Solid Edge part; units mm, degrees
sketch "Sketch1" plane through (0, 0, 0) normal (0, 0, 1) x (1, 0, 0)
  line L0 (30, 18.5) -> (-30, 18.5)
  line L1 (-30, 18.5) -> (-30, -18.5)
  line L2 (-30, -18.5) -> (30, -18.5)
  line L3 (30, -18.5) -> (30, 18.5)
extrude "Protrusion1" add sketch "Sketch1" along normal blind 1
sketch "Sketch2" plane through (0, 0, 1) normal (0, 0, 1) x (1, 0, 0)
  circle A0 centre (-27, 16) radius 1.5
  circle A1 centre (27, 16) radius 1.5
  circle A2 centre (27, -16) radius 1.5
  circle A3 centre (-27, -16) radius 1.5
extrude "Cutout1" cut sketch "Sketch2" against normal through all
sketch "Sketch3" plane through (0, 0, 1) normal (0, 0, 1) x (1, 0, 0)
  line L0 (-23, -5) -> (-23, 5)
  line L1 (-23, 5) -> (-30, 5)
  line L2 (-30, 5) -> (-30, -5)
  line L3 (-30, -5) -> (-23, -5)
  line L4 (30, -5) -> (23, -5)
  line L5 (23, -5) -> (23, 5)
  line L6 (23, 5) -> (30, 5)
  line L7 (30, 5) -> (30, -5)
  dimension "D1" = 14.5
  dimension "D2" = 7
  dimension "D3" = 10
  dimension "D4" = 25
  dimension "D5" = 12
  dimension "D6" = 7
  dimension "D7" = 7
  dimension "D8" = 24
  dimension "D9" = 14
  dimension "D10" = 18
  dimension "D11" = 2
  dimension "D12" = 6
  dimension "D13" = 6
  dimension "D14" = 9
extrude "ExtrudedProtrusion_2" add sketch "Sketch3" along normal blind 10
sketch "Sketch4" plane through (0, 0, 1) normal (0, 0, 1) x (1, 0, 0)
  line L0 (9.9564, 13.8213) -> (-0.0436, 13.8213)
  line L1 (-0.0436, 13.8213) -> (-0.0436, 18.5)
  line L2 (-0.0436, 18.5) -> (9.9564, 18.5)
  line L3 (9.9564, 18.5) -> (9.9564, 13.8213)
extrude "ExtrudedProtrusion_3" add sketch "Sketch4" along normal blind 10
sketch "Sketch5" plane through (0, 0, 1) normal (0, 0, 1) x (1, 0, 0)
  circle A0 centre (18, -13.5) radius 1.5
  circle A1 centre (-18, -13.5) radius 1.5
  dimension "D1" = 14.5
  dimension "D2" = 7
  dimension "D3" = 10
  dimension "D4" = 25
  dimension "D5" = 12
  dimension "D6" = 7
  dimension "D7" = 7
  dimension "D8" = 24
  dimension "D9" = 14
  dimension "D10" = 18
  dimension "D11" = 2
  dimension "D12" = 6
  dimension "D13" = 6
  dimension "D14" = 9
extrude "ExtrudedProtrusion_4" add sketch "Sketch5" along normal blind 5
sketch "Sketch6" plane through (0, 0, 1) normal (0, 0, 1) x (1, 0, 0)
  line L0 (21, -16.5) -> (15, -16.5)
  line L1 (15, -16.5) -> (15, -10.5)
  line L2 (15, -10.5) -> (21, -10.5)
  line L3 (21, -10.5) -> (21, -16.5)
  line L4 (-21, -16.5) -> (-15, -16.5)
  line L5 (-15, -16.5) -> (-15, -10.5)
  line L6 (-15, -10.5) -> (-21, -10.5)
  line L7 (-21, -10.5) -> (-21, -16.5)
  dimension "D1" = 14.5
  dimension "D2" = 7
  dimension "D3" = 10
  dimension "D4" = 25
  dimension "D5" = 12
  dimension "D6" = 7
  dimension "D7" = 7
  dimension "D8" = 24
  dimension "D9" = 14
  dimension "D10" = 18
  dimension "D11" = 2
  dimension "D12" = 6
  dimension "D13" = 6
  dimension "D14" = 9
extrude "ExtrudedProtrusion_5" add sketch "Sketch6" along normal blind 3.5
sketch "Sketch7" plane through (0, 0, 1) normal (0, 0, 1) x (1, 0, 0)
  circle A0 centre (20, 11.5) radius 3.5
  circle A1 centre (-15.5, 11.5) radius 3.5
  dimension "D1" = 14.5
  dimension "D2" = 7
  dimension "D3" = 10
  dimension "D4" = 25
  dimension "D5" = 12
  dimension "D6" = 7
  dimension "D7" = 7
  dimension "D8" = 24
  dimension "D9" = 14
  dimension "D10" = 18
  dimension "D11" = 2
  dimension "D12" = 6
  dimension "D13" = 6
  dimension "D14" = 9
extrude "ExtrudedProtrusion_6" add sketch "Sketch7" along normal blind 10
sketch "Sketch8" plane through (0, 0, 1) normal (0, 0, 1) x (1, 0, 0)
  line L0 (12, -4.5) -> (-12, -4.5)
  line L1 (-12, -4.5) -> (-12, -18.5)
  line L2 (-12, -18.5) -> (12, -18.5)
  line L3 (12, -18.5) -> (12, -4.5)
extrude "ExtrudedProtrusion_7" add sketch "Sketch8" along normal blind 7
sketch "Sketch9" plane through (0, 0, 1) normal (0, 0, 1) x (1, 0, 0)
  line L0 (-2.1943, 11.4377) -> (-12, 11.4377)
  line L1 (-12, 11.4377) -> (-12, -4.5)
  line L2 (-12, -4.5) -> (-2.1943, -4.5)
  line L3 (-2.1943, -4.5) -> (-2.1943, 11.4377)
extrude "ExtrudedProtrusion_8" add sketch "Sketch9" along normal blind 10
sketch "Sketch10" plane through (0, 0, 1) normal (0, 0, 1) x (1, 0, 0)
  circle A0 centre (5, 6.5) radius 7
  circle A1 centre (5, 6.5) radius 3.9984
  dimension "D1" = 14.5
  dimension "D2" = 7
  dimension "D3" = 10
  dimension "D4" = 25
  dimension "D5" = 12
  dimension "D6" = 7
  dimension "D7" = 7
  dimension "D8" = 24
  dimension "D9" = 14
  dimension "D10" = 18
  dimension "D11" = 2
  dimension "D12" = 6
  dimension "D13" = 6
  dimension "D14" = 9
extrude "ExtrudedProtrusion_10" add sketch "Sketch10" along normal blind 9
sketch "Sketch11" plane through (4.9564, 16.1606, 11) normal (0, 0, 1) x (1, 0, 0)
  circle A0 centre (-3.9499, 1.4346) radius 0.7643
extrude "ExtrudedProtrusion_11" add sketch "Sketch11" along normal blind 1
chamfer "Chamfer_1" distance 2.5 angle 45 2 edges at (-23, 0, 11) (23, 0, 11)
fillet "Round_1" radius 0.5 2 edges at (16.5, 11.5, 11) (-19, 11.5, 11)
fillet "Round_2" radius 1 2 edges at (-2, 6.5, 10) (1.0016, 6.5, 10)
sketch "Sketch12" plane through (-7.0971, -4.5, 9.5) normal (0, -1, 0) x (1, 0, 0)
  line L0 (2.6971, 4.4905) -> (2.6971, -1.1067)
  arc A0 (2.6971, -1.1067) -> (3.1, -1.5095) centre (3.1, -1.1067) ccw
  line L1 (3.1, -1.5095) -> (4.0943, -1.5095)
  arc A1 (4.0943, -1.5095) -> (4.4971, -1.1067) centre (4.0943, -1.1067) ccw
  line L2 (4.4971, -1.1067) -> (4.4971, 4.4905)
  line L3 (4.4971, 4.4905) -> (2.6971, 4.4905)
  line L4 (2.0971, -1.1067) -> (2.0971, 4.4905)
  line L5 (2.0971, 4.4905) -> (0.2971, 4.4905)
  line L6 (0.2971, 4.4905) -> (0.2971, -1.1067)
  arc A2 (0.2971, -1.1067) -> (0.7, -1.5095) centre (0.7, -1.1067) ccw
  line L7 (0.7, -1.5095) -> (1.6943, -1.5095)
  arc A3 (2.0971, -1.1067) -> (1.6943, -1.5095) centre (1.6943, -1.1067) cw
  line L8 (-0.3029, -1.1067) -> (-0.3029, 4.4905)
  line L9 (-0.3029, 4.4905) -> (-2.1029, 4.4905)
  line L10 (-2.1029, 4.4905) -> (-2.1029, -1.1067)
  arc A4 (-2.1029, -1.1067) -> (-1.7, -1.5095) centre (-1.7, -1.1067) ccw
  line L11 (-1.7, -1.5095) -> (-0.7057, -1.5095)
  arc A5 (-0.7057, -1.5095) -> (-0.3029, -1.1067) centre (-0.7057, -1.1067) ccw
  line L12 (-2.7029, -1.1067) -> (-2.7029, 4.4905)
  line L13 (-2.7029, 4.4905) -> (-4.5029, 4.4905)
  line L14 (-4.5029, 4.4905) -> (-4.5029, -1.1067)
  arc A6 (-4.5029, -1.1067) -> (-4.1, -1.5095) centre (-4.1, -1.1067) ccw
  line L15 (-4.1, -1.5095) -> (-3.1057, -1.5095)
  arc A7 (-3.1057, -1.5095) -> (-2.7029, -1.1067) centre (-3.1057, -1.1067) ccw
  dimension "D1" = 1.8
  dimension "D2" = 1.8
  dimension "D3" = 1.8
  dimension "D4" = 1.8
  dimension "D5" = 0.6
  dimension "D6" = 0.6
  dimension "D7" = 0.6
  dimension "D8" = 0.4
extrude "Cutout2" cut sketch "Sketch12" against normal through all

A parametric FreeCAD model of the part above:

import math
import FreeCAD as App
import Part
import Sketcher
Q = App.Units.Quantity


def edges_at(feature, points):
    """Names of the edges that pass closest to the given points."""
    edges = feature.Shape.Edges
    near = lambda p: min(range(len(edges)), key=lambda i: edges[i].distToShape(Part.Vertex(*p))[0])
    return sorted({f"Edge{near(p) + 1}" for p in points})


def add_polygon(sketch, points):
    """Adds a closed chain of lines whose ends are joined by coincident constraints."""
    first, n = sketch.GeometryCount, len(points)
    for a, b in zip(points, points[1:] + points[:1]):
        sketch.addGeometry(Part.LineSegment(App.Vector(*a, 0), App.Vector(*b, 0)), False)
    for i in range(n):
        sketch.addConstraint(Sketcher.Constraint("Coincident", first + i, 2, first + (i + 1) % n, 1))

doc = App.newDocument("Part")
body = doc.addObject("PartDesign::Body", "Body")

sketch1 = body.newObject("Sketcher::SketchObject", "Sketch")
sketch1.AttachmentSupport = (doc.getObject("XY_Plane"), [""])
sketch1.MapMode = "FlatFace"
add_polygon(sketch1, [(30, -18), (30, 18), (-30, 18), (-30, -18)])
sketch1.addConstraint([
    Sketcher.Constraint("Vertical", 0),
    Sketcher.Constraint("Horizontal", 1),
    Sketcher.Constraint("Vertical", 2),
    Sketcher.Constraint("Horizontal", 3),
    Sketcher.Constraint("Symmetric", 0, 2, 2, 2, -1, 1),
    Sketcher.Constraint("DistanceX", 1, 2, 1, 1, Q("60 mm")),
    Sketcher.Constraint("DistanceY", 0, 1, 0, 2, Q("37 mm")),
])
pad1 = body.newObject("PartDesign::Pad", "Pad")
pad1.Profile = sketch1
pad1.Length = 1

sketch2 = body.newObject("Sketcher::SketchObject", "Sketch001")
sketch2.AttachmentSupport = (doc.getObject("XY_Plane"), [""])
sketch2.MapMode = "FlatFace"
sketch2.AttachmentOffset = App.Placement(App.Vector(0, 0, 1), App.Rotation())
sketch2.addGeometry([
    Part.Circle(App.Vector(-27, 16, 0), App.Vector(0, 0, 1), 1.5),
    Part.Circle(App.Vector(27, 16, 0), App.Vector(0, 0, 1), 1.5),
    Part.Circle(App.Vector(27, -16, 0), App.Vector(0, 0, 1), 1.5),
    Part.Circle(App.Vector(-27, -16, 0), App.Vector(0, 0, 1), 1.5),
], False)
sketch2.addConstraint([
    Sketcher.Constraint("Equal", 0, 1),
    Sketcher.Constraint("Equal", 1, 2),
    Sketcher.Constraint("Equal", 2, 3),
    Sketcher.Constraint("Symmetric", 0, 3, 2, 3, -1, 1),
    Sketcher.Constraint("Symmetric", 1, 3, 3, 3, -1, 1),
    Sketcher.Constraint("Symmetric", 0, 3, 1, 3, -2),
    Sketcher.Constraint("Diameter", 0, Q("3 mm")),
    Sketcher.Constraint("DistanceX", 0, 3, -1, 1, Q("27 mm")),
    Sketcher.Constraint("DistanceY", -1, 1, 0, 3, Q("16 mm")),
])
pocket1 = body.newObject("PartDesign::Pocket", "Pocket")
pocket1.Profile = sketch2
pocket1.Type = "ThroughAll"

sketch3 = body.newObject("Sketcher::SketchObject", "Sketch002")
sketch3.AttachmentSupport = (doc.getObject("XY_Plane"), [""])
sketch3.MapMode = "FlatFace"
sketch3.AttachmentOffset = App.Placement(App.Vector(0, 0, 1), App.Rotation())
add_polygon(sketch3, [(-30, -5), (-23, -5), (-23, 5), (-30, 5)])
add_polygon(sketch3, [(23, -5), (30, -5), (30, 5), (23, 5)])
sketch3.addConstraint([
    Sketcher.Constraint("Horizontal", 0),
    Sketcher.Constraint("Vertical", 1),
    Sketcher.Constraint("Horizontal", 2),
    Sketcher.Constraint("Vertical", 3),
    Sketcher.Constraint("Horizontal", 4),
    Sketcher.Constraint("Vertical", 5),
    Sketcher.Constraint("Horizontal", 6),
    Sketcher.Constraint("Vertical", 7),
    Sketcher.Constraint("Symmetric", 2, 2, 4, 2, -1, 1),
    Sketcher.Constraint("Symmetric", 0, 2, 6, 2, -1, 1),
    Sketcher.Constraint("Horizontal", 3, 2, 4, 2),
    Sketcher.Constraint("DistanceX", 0, 1, 0, 2, Q("7 mm")),
    Sketcher.Constraint("DistanceY", 1, 1, 1, 2, Q("10 mm")),
    Sketcher.Constraint("DistanceX", 0, 2, -1, 1, Q("23 mm")),
])
pad2 = body.newObject("PartDesign::Pad", "Pad001")
pad2.Profile = sketch3
pad2.Length = 10

sketch4 = body.newObject("Sketcher::SketchObject", "Sketch003")
sketch4.AttachmentSupport = (doc.getObject("XY_Plane"), [""])
sketch4.MapMode = "FlatFace"
sketch4.AttachmentOffset = App.Placement(App.Vector(0, 0, 1), App.Rotation())
add_polygon(sketch4, [(0, 13.8), (10, 13.8), (10, 18.5), (0, 18.5)])
sketch4.addConstraint([
    Sketcher.Constraint("Horizontal", 0),
    Sketcher.Constraint("Vertical", 1),
    Sketcher.Constraint("Horizontal", 2),
    Sketcher.Constraint("Vertical", 3),
    Sketcher.Constraint("DistanceX", 0, 1, 0, 2, Q("10 mm")),
    Sketcher.Constraint("DistanceY", -1, 1, 1, 2, Q("18.5 mm")),
    Sketcher.Constraint("DistanceY", 1, 1, 1, 2, Q("4.6787 mm")),
    Sketcher.Constraint("DistanceX", -1, 1, 0, 2, Q("9.9564 mm")),
])
pad3 = body.newObject("PartDesign::Pad", "Pad002")
pad3.Profile = sketch4
pad3.Length = 10

sketch5 = body.newObject("Sketcher::SketchObject", "Sketch004")
sketch5.AttachmentSupport = (doc.getObject("XY_Plane"), [""])
sketch5.MapMode = "FlatFace"
sketch5.AttachmentOffset = App.Placement(App.Vector(0, 0, 1), App.Rotation())
sketch5.addGeometry([
    Part.Circle(App.Vector(18, -13.5, 0), App.Vector(0, 0, 1), 1.5),
    Part.Circle(App.Vector(-18, -13.5, 0), App.Vector(0, 0, 1), 1.5),
], False)
sketch5.addConstraint([
    Sketcher.Constraint("Equal", 0, 1),
    Sketcher.Constraint("Symmetric", 0, 3, 1, 3, -2),
    Sketcher.Constraint("Diameter", 0, Q("3 mm")),
    Sketcher.Constraint("DistanceX", -1, 1, 0, 3, Q("18 mm")),
    Sketcher.Constraint("DistanceY", 0, 3, -1, 1, Q("13.5 mm")),
])
pad4 = body.newObject("PartDesign::Pad", "Pad003")
pad4.Profile = sketch5
pad4.Length = 5

sketch6 = body.newObject("Sketcher::SketchObject", "Sketch005")
sketch6.AttachmentSupport = (doc.getObject("XY_Plane"), [""])
sketch6.MapMode = "FlatFace"
sketch6.AttachmentOffset = App.Placement(App.Vector(0, 0, 1), App.Rotation())
add_polygon(sketch6, [(15, -16), (21, -16), (21, -10), (15, -10)])
add_polygon(sketch6, [(-21, -10), (-21, -16), (-15, -16), (-15, -10)])
sketch6.addConstraint([
    Sketcher.Constraint("Horizontal", 0),
    Sketcher.Constraint("Vertical", 1),
    Sketcher.Constraint("Horizontal", 2),
    Sketcher.Constraint("Vertical", 3),
    Sketcher.Constraint("Vertical", 4),
    Sketcher.Constraint("Horizontal", 5),
    Sketcher.Constraint("Vertical", 6),
    Sketcher.Constraint("Horizontal", 7),
    Sketcher.Constraint("Symmetric", 0, 2, 4, 2, -2),
    Sketcher.Constraint("Symmetric", 2, 2, 6, 2, -2),
    Sketcher.Constraint("Equal", 7, 1),
    Sketcher.Constraint("DistanceX", 0, 1, 0, 2, Q("6 mm")),
    Sketcher.Constraint("DistanceX", -1, 1, 0, 2, Q("21 mm")),
    Sketcher.Constraint("DistanceY", 0, 2, -1, 1, Q("16.5 mm")),
])
pad5 = body.newObject("PartDesign::Pad", "Pad004")
pad5.Profile = sketch6
pad5.Length = 3.5

sketch7 = body.newObject("Sketcher::SketchObject", "Sketch006")
sketch7.AttachmentSupport = (doc.getObject("XY_Plane"), [""])
sketch7.MapMode = "FlatFace"
sketch7.AttachmentOffset = App.Placement(App.Vector(0, 0, 1), App.Rotation())
sketch7.addGeometry([
    Part.Circle(App.Vector(20, 11.5, 0), App.Vector(0, 0, 1), 3.5),
    Part.Circle(App.Vector(-15.5, 11.5, 0), App.Vector(0, 0, 1), 3.5),
], False)
sketch7.addConstraint([
    Sketcher.Constraint("Equal", 0, 1),
    Sketcher.Constraint("Horizontal", 0, 3, 1, 3),
    Sketcher.Constraint("Diameter", 0, Q("7 mm")),
    Sketcher.Constraint("DistanceX", -1, 1, 0, 3, Q("20 mm")),
    Sketcher.Constraint("DistanceY", -1, 1, 0, 3, Q("11.5 mm")),
    Sketcher.Constraint("DistanceX", 1, 3, -1, 1, Q("15.5 mm")),
])
pad6 = body.newObject("PartDesign::Pad", "Pad005")
pad6.Profile = sketch7
pad6.Length = 10

sketch8 = body.newObject("Sketcher::SketchObject", "Sketch007")
sketch8.AttachmentSupport = (doc.getObject("XY_Plane"), [""])
sketch8.MapMode = "FlatFace"
sketch8.AttachmentOffset = App.Placement(App.Vector(0, 0, 1), App.Rotation())
add_polygon(sketch8, [(12, -18), (12, -4), (-12, -4), (-12, -18)])
sketch8.addConstraint([
    Sketcher.Constraint("Vertical", 0),
    Sketcher.Constraint("Horizontal", 1),
    Sketcher.Constraint("Vertical", 2),
    Sketcher.Constraint("Horizontal", 3),
    Sketcher.Constraint("DistanceX", 1, 2, 1, 1, Q("24 mm")),
    Sketcher.Constraint("DistanceY", 0, 1, 0, 2, Q("14 mm")),
    Sketcher.Constraint("DistanceX", -1, 1, 0, 2, Q("12 mm")),
    Sketcher.Constraint("DistanceY", 0, 2, -1, 1, Q("4.5 mm")),
])
pad7 = body.newObject("PartDesign::Pad", "Pad006")
pad7.Profile = sketch8
pad7.Length = 7

sketch9 = body.newObject("Sketcher::SketchObject", "Sketch008")
sketch9.AttachmentSupport = (doc.getObject("XY_Plane"), [""])
sketch9.MapMode = "FlatFace"
sketch9.AttachmentOffset = App.Placement(App.Vector(0, 0, 1), App.Rotation())
add_polygon(sketch9, [(-2, -4), (-2, 11), (-12, 11), (-12, -4)])
sketch9.addConstraint([
    Sketcher.Constraint("Vertical", 0),
    Sketcher.Constraint("Horizontal", 1),
    Sketcher.Constraint("Vertical", 2),
    Sketcher.Constraint("Horizontal", 3),
    Sketcher.Constraint("DistanceX", 1, 2, -1, 1, Q("12 mm")),
    Sketcher.Constraint("DistanceY", 2, 2, -1, 1, Q("4.5 mm")),
    Sketcher.Constraint("DistanceX", 1, 2, 1, 1, Q("9.8057 mm")),
    Sketcher.Constraint("DistanceY", 0, 1, 0, 2, Q("15.9377 mm")),
])
pad8 = body.newObject("PartDesign::Pad", "Pad007")
pad8.Profile = sketch9
pad8.Length = 10

sketch10 = body.newObject("Sketcher::SketchObject", "Sketch009")
sketch10.AttachmentSupport = (doc.getObject("XY_Plane"), [""])
sketch10.MapMode = "FlatFace"
sketch10.AttachmentOffset = App.Placement(App.Vector(0, 0, 1), App.Rotation())
sketch10.addGeometry([
    Part.Circle(App.Vector(5, 6.5, 0), App.Vector(0, 0, 1), 7),
    Part.Circle(App.Vector(5, 6.5, 0), App.Vector(0, 0, 1), 4),
], False)
sketch10.addConstraint([
    Sketcher.Constraint("Coincident", 1, 3, 0, 3),
    Sketcher.Constraint("Diameter", 0, Q("14 mm")),
    Sketcher.Constraint("DistanceX", -1, 1, 0, 3, Q("5 mm")),
    Sketcher.Constraint("Diameter", 1, Q("7.9968 mm")),
    Sketcher.Constraint("DistanceY", -1, 1, 0, 3, Q("6.5 mm")),
])
pad9 = body.newObject("PartDesign::Pad", "Pad008")
pad9.Profile = sketch10
pad9.Length = 9

sketch11 = body.newObject("Sketcher::SketchObject", "Sketch010")
sketch11.AttachmentSupport = (doc.getObject("XY_Plane"), [""])
sketch11.MapMode = "FlatFace"
sketch11.AttachmentOffset = App.Placement(App.Vector(0, 0, 11), App.Rotation())
sketch11.addGeometry(Part.Circle(App.Vector(1, 17.6, 0), App.Vector(0, 0, 1), 0.8), False)
sketch11.addConstraint([
    Sketcher.Constraint("Diameter", 0, Q("1.5286 mm")),
    Sketcher.Constraint("DistanceX", -1, 1, 0, 3, Q("1.0065 mm")),
    Sketcher.Constraint("DistanceY", -1, 1, 0, 3, Q("17.5952 mm")),
])
pad10 = body.newObject("PartDesign::Pad", "Pad009")
pad10.Profile = sketch11
pad10.Length = 1
doc.recompute()

chamfer = body.newObject("PartDesign::Chamfer", "Chamfer")
chamfer.Base = (pad10, edges_at(pad10, [(-23, 0, 11), (23, 0, 11)]))
chamfer.Size = 2.5
doc.recompute()

fillet = body.newObject("PartDesign::Fillet", "Fillet")
fillet.Base = (chamfer, edges_at(chamfer, [(16.5, 11.5, 11), (-19, 11.5, 11)]))
fillet.Radius = 0.5
doc.recompute()

fillet2 = body.newObject("PartDesign::Fillet", "Fillet001")
fillet2.Base = (fillet, edges_at(fillet, [(-2, 6.5, 10), (1.002, 6.5, 10)]))
fillet2.Radius = 1

sketch12 = body.newObject("Sketcher::SketchObject", "Sketch011")
sketch12.AttachmentSupport = (doc.getObject("XZ_Plane"), [""])
sketch12.MapMode = "FlatFace"
sketch12.AttachmentOffset = App.Placement(App.Vector(0, 0, 4.5), App.Rotation())
sketch12.addGeometry([
    Part.LineSegment(App.Vector(-2.6, 13.99, 0), App.Vector(-4.4, 13.99, 0)),
    Part.LineSegment(App.Vector(-4.4, 13.99, 0), App.Vector(-4.4, 8.39, 0)),
    Part.ArcOfCircle(Part.Circle(App.Vector(-4, 8.39, 0), App.Vector(0, 0, 1), 0.4), math.radians(180), math.radians(270)),
    Part.LineSegment(App.Vector(-4, 7.99, 0), App.Vector(-3, 7.99, 0)),
    Part.ArcOfCircle(Part.Circle(App.Vector(-3, 8.39, 0), App.Vector(0, 0, 1), 0.4), math.radians(-90), math.radians(0)),
    Part.LineSegment(App.Vector(-2.6, 8.39, 0), App.Vector(-2.6, 13.99, 0)),
    Part.ArcOfCircle(Part.Circle(App.Vector(-5.4, 8.39, 0), App.Vector(0, 0, 1), 0.4), math.radians(-90), math.radians(0)),
    Part.LineSegment(App.Vector(-5, 8.39, 0), App.Vector(-5, 13.99, 0)),
    Part.LineSegment(App.Vector(-5, 13.99, 0), App.Vector(-6.8, 13.99, 0)),
    Part.LineSegment(App.Vector(-6.8, 13.99, 0), App.Vector(-6.8, 8.39, 0)),
    Part.ArcOfCircle(Part.Circle(App.Vector(-6.4, 8.39, 0), App.Vector(0, 0, 1), 0.4), math.radians(180), math.radians(270)),
    Part.LineSegment(App.Vector(-6.4, 7.99, 0), App.Vector(-5.4, 7.99, 0)),
    Part.ArcOfCircle(Part.Circle(App.Vector(-7.8, 8.39, 0), App.Vector(0, 0, 1), 0.4), math.radians(-90), math.radians(0)),
    Part.LineSegment(App.Vector(-7.4, 8.39, 0), App.Vector(-7.4, 13.99, 0)),
    Part.LineSegment(App.Vector(-7.4, 13.99, 0), App.Vector(-9.2, 13.99, 0)),
    Part.LineSegment(App.Vector(-9.2, 13.99, 0), App.Vector(-9.2, 8.39, 0)),
    Part.ArcOfCircle(Part.Circle(App.Vector(-8.8, 8.39, 0), App.Vector(0, 0, 1), 0.4), math.radians(180), math.radians(270)),
    Part.LineSegment(App.Vector(-8.8, 7.99, 0), App.Vector(-7.8, 7.99, 0)),
    Part.ArcOfCircle(Part.Circle(App.Vector(-10.2, 8.39, 0), App.Vector(0, 0, 1), 0.4), math.radians(-90), math.radians(0)),
    Part.LineSegment(App.Vector(-9.8, 8.39, 0), App.Vector(-9.8, 13.99, 0)),
    Part.LineSegment(App.Vector(-9.8, 13.99, 0), App.Vector(-11.6, 13.99, 0)),
    Part.LineSegment(App.Vector(-11.6, 13.99, 0), App.Vector(-11.6, 8.39, 0)),
    Part.ArcOfCircle(Part.Circle(App.Vector(-11.2, 8.39, 0), App.Vector(0, 0, 1), 0.4), math.radians(180), math.radians(270)),
    Part.LineSegment(App.Vector(-11.2, 7.99, 0), App.Vector(-10.2, 7.99, 0)),
], False)
sketch12.addConstraint([
    Sketcher.Constraint("Coincident", 0, 2, 1, 1),
    Sketcher.Constraint("Tangent", 1, 2, 2, 1),
    Sketcher.Constraint("Tangent", 2, 2, 3, 1),
    Sketcher.Constraint("Tangent", 3, 2, 4, 1),
    Sketcher.Constraint("Tangent", 4, 2, 5, 1),
    Sketcher.Constraint("Coincident", 5, 2, 0, 1),
    Sketcher.Constraint("Tangent", 6, 2, 7, 1),
    Sketcher.Constraint("Coincident", 7, 2, 8, 1),
    Sketcher.Constraint("Coincident", 8, 2, 9, 1),
    Sketcher.Constraint("Tangent", 9, 2, 10, 1),
    Sketcher.Constraint("Tangent", 10, 2, 11, 1),
    Sketcher.Constraint("Tangent", 11, 2, 6, 1),
    Sketcher.Constraint("Tangent", 12, 2, 13, 1),
    Sketcher.Constraint("Coincident", 13, 2, 14, 1),
    Sketcher.Constraint("Coincident", 14, 2, 15, 1),
    Sketcher.Constraint("Tangent", 15, 2, 16, 1),
    Sketcher.Constraint("Tangent", 16, 2, 17, 1),
    Sketcher.Constraint("Tangent", 17, 2, 12, 1),
    Sketcher.Constraint("Tangent", 18, 2, 19, 1),
    Sketcher.Constraint("Coincident", 19, 2, 20, 1),
    Sketcher.Constraint("Coincident", 20, 2, 21, 1),
    Sketcher.Constraint("Tangent", 21, 2, 22, 1),
    Sketcher.Constraint("Tangent", 22, 2, 23, 1),
    Sketcher.Constraint("Tangent", 23, 2, 18, 1),
    Sketcher.Constraint("Horizontal", 0),
    Sketcher.Constraint("Vertical", 1),
    Sketcher.Constraint("Horizontal", 3),
    Sketcher.Constraint("Vertical", 5),
    Sketcher.Constraint("Vertical", 7),
    Sketcher.Constraint("Horizontal", 8),
    Sketcher.Constraint("Vertical", 9),
    Sketcher.Constraint("Horizontal", 11),
    Sketcher.Constraint("Vertical", 13),
    Sketcher.Constraint("Horizontal", 14),
    Sketcher.Constraint("Vertical", 15),
    Sketcher.Constraint("Horizontal", 17),
    Sketcher.Constraint("Vertical", 19),
    Sketcher.Constraint("Horizontal", 20),
    Sketcher.Constraint("Vertical", 21),
    Sketcher.Constraint("Horizontal", 23),
    Sketcher.Constraint("Equal", 2, 4),
    Sketcher.Constraint("Equal", 4, 6),
    Sketcher.Constraint("Equal", 6, 10),
    Sketcher.Constraint("Equal", 10, 12),
    Sketcher.Constraint("Equal", 12, 16),
    Sketcher.Constraint("Equal", 16, 18),
    Sketcher.Constraint("Equal", 18, 22),
    Sketcher.Constraint("Horizontal", 4, 3, 6, 3),
    Sketcher.Constraint("Horizontal", 10, 3, 12, 3),
    Sketcher.Constraint("Horizontal", 16, 3, 18, 3),
    Sketcher.Constraint("Horizontal", 5, 2, 7, 2),
    Sketcher.Constraint("Horizontal", 8, 2, 13, 2),
    Sketcher.Constraint("Horizontal", 14, 2, 19, 2),
    Sketcher.Constraint("Equal", 0, 8),
    Sketcher.Constraint("Equal", 8, 14),
    Sketcher.Constraint("Equal", 14, 20),
    Sketcher.Constraint("DistanceX", 0, 2, 0, 1, Q("1.8 mm")),
    Sketcher.Constraint("DistanceX", 6, 2, -1, 1, Q("5 mm")),
    Sketcher.Constraint("Radius", 2, Q("0.403 mm")),
    Sketcher.Constraint("DistanceX", 13, 2, 0, 2, Q("3 mm")),
    Sketcher.Constraint("DistanceX", 19, 2, 8, 2, Q("3 mm")),
    Sketcher.Constraint("DistanceX", 0, 2, -1, 1, Q("4.4 mm")),
    Sketcher.Constraint("DistanceY", 1, 2, 1, 1, Q("5.5972 mm")),
    Sketcher.Constraint("DistanceY", -1, 1, 2, 3, Q("8.3933 mm")),
])
pocket2 = body.newObject("PartDesign::Pocket", "Pocket001")
pocket2.Profile = sketch12
pocket2.Type = "ThroughAll"

doc.recompute()
